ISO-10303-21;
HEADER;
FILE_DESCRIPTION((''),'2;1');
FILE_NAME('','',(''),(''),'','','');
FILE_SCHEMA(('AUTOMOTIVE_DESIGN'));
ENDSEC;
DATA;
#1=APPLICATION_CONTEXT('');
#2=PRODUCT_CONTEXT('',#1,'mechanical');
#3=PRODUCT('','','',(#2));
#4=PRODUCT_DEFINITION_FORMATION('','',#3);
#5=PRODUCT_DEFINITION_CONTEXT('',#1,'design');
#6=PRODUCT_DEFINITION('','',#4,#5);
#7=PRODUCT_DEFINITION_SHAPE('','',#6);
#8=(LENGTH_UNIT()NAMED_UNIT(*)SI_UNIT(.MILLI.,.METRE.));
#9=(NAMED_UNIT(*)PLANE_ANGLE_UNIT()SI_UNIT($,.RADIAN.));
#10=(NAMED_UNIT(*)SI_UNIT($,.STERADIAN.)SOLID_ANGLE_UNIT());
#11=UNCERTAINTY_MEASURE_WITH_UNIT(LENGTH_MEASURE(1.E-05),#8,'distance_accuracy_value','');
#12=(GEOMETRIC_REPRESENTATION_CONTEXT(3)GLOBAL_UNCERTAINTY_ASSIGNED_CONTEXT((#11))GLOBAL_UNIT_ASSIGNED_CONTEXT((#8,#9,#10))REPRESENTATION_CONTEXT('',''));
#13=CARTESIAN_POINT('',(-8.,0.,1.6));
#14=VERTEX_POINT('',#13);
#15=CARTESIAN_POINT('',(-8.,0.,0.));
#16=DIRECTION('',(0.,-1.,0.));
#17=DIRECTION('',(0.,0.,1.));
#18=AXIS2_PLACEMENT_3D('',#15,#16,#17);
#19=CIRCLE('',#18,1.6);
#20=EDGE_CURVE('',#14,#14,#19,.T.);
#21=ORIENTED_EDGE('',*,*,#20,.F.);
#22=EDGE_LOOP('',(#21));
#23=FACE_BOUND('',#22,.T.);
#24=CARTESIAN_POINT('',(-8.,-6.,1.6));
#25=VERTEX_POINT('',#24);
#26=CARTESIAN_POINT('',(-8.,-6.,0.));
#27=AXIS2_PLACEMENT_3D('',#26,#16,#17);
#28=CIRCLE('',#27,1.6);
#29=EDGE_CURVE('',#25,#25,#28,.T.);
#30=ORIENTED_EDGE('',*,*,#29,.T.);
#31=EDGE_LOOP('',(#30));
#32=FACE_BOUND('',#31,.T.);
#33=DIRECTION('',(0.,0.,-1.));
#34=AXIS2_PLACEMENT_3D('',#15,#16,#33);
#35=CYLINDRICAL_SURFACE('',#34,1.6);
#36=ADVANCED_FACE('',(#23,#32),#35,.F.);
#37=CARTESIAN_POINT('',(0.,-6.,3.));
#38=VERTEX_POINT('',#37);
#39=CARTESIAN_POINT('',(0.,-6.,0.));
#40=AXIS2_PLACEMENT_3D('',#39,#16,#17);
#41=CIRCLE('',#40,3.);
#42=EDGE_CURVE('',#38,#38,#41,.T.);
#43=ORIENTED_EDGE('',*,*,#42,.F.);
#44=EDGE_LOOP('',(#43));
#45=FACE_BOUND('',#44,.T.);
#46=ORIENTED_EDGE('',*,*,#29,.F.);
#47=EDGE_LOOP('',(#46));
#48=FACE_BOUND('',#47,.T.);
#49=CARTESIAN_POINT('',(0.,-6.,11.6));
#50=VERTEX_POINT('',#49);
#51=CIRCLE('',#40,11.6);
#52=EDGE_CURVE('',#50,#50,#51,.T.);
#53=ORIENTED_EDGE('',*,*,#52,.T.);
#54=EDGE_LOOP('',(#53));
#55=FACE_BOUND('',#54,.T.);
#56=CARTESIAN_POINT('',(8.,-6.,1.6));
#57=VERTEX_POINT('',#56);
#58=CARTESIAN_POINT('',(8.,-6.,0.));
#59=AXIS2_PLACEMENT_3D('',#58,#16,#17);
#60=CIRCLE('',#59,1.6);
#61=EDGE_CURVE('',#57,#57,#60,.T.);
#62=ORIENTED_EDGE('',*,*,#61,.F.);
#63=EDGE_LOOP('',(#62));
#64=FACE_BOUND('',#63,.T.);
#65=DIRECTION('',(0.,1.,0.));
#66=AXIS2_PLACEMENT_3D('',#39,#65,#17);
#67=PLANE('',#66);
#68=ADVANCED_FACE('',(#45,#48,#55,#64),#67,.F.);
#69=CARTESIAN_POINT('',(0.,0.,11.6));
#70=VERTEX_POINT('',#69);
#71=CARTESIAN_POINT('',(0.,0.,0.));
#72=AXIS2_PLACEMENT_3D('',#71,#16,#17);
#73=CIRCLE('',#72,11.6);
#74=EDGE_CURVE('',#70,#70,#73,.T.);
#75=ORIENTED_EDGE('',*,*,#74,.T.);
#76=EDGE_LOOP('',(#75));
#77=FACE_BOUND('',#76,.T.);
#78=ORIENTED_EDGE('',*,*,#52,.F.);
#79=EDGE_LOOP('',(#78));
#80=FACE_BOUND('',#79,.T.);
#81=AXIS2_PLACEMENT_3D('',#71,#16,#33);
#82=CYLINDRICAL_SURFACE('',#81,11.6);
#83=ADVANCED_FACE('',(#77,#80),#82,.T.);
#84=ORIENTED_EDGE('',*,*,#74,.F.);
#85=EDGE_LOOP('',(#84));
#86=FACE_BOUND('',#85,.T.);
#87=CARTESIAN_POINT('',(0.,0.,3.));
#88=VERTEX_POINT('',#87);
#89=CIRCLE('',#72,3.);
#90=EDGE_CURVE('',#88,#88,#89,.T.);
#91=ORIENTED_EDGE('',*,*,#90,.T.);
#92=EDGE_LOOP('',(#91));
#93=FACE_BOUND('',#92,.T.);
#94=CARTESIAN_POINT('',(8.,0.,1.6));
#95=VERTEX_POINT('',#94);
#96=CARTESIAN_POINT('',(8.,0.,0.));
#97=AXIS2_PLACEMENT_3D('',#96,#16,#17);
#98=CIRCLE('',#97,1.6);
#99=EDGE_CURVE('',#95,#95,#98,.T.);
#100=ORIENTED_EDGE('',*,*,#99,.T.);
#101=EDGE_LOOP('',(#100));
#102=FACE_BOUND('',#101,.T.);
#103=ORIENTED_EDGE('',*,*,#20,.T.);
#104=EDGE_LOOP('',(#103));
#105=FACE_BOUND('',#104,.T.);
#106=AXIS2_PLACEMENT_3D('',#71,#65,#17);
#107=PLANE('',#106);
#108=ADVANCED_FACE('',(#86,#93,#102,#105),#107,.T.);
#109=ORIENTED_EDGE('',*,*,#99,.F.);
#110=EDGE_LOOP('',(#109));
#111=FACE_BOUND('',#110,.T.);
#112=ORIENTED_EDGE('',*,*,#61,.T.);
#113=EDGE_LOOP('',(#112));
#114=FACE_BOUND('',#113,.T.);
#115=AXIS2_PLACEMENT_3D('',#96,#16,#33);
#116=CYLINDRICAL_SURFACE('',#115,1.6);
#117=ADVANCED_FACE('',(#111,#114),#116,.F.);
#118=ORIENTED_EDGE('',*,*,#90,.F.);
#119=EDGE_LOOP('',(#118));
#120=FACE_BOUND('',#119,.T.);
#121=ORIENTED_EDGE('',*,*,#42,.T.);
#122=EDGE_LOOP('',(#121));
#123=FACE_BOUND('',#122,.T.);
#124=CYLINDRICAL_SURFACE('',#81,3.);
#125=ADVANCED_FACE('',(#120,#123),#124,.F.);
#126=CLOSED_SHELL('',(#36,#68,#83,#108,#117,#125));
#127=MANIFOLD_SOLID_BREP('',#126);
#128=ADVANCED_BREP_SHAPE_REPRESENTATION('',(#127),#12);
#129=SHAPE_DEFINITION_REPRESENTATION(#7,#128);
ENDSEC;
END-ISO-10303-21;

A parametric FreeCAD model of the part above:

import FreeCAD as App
import Part
import Sketcher
from FreeCAD import Vector
Q = App.Units.Quantity

doc = App.newDocument("Part")
body = doc.addObject("PartDesign::Body", "Body")

# Sketch on XZ plane
sketch1 = body.newObject("Sketcher::SketchObject", "Sketch")
sketch1.AttachmentSupport = (doc.getObject("XZ_Plane"), [""])
sketch1.MapMode = "FlatFace"
sketch1.AttachmentOffset = App.Placement(Vector(0, 0, 6), App.Rotation())
sketch1.addGeometry([
    Part.Circle(Vector(0, 0, 0), Vector(0, 0, 1), 11.6),
    Part.Circle(Vector(-8, 0, 0), Vector(0, 0, 1), 1.6),
    Part.Circle(Vector(0, 0, 0), Vector(0, 0, 1), 3),
    Part.Circle(Vector(8, 0, 0), Vector(0, 0, 1), 1.6),
], False)
sketch1.addConstraint([
    Sketcher.Constraint("Coincident", 0, 3, -1, 1),
    Sketcher.Constraint("Coincident", 2, 3, -1, 1),
    Sketcher.Constraint("Equal", 1, 3),
    Sketcher.Constraint("Symmetric", 1, 3, 3, 3, -1, 1),
    Sketcher.Constraint("PointOnObject", 1, 3, -1),
    Sketcher.Constraint("Diameter", 2, Q("6 mm")),
    Sketcher.Constraint("Diameter", 0, Q("23.2 mm")),
    Sketcher.Constraint("Diameter", 1, Q("3.2 mm")),
    Sketcher.Constraint("DistanceX", 1, 3, -1, 1, Q("8 mm")),
])
pad1 = body.newObject("PartDesign::Pad", "Pad")
pad1.Profile = sketch1
pad1.Length = 6
pad1.Reversed = True

doc.recompute()
